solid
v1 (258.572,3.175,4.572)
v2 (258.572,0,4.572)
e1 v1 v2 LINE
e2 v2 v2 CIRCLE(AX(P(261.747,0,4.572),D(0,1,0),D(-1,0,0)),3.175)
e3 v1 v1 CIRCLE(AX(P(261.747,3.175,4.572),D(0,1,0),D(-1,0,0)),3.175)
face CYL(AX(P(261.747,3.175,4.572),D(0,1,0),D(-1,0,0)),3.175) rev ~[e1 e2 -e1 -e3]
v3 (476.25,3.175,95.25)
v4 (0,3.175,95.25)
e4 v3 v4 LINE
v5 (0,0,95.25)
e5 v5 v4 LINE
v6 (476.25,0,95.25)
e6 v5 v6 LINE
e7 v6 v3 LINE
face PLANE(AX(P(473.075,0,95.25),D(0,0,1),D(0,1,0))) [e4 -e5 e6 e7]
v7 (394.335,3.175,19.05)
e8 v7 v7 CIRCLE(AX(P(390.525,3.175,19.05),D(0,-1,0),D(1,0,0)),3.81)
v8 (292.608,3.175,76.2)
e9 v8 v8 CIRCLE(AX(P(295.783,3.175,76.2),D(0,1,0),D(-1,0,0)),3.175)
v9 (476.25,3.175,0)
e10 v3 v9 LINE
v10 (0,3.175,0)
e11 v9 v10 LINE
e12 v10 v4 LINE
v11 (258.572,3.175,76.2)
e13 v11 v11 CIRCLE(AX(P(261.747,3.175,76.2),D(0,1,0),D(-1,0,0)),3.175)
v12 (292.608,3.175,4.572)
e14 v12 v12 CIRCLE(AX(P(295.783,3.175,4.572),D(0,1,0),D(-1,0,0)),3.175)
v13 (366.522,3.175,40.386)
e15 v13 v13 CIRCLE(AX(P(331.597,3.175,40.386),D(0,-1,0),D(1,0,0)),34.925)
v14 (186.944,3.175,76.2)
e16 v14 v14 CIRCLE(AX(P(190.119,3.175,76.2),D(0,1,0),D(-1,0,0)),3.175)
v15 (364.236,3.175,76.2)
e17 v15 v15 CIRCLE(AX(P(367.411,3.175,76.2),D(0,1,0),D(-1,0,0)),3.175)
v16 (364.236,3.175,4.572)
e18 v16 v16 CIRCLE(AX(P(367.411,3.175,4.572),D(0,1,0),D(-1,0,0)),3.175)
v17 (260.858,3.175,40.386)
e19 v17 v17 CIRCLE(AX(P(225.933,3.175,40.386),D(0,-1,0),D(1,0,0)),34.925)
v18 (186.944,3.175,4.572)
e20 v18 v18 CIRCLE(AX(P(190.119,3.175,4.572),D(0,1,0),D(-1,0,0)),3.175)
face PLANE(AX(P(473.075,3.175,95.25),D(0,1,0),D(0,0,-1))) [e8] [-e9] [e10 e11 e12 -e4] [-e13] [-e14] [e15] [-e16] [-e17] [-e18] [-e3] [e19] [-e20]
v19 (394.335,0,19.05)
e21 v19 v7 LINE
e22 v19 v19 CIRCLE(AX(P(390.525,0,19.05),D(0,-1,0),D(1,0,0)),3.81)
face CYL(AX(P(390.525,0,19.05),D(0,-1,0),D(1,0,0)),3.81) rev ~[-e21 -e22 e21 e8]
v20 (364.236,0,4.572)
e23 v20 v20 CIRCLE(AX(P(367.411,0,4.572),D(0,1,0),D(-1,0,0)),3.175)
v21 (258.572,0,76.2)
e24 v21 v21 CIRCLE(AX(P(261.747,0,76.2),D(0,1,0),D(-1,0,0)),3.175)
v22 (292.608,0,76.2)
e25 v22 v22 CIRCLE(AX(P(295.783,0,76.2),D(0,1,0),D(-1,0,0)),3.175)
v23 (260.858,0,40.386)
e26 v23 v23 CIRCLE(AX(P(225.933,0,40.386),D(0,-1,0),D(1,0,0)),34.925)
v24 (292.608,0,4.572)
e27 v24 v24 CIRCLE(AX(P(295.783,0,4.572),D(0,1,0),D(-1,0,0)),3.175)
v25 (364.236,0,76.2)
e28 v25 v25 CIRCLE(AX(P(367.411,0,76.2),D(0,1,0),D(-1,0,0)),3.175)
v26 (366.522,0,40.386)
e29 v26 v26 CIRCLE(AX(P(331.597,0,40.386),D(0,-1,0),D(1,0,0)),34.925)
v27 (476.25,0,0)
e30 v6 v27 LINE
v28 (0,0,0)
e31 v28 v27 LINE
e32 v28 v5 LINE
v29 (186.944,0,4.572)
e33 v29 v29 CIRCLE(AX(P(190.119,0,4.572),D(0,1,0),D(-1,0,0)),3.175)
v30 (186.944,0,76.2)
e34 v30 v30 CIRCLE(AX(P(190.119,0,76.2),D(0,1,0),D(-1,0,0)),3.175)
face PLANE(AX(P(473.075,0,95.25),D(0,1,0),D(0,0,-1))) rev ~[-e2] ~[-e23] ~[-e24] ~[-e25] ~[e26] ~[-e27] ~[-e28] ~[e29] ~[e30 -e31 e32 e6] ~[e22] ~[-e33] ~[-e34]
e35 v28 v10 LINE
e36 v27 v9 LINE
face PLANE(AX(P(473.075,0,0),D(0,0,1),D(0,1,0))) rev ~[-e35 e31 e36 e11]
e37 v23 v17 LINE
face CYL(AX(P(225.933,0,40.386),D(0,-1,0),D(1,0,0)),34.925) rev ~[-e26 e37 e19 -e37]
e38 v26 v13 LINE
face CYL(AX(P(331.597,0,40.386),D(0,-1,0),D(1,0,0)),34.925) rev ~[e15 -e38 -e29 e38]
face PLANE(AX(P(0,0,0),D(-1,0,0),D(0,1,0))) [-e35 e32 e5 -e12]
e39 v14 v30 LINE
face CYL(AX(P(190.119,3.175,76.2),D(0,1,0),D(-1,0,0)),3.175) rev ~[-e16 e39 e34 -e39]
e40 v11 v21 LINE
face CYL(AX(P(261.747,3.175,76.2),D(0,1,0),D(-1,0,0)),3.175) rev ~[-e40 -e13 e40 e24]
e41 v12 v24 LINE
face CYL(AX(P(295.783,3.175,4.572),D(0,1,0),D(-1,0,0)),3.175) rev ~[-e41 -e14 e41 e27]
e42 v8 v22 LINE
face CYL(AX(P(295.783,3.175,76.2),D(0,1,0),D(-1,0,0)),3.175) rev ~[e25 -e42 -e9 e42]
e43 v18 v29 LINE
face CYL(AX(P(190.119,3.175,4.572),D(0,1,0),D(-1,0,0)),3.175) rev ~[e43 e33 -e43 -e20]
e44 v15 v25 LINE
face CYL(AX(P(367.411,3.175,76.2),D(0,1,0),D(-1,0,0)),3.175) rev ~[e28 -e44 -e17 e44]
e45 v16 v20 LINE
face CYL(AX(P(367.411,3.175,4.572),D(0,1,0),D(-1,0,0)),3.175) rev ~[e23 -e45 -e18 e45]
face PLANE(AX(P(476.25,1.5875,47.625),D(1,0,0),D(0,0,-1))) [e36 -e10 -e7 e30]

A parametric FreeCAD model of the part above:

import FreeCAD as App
import Part
import Sketcher

V = App.Vector
Q = App.Units.Quantity


def add_polygon(sketch, points):
    """Adds a closed chain of lines whose ends are joined by coincident constraints."""
    first, n = sketch.GeometryCount, len(points)
    for a, b in zip(points, points[1:] + points[:1]):
        sketch.addGeometry(Part.LineSegment(App.Vector(*a, 0), App.Vector(*b, 0)), False)
    for i in range(n):
        sketch.addConstraint(Sketcher.Constraint("Coincident", first + i, 2, first + (i + 1) % n, 1))

doc = App.newDocument("Part")
body = doc.addObject("PartDesign::Body", "Body")

sketch1 = body.newObject("Sketcher::SketchObject", "Sketch")
sketch1.AttachmentSupport = (doc.getObject("XY_Plane"), [""])
sketch1.MapMode = "FlatFace"
add_polygon(sketch1, [(0, 381), (0, 0), (473.1, 0), (473.1, 3.2), (3.2, 3.2), (3.2, 381)])
sketch1.addConstraint(Sketcher.Constraint("Vertical", 0))
sketch1.addConstraint(Sketcher.Constraint("Horizontal", 1))
sketch1.addConstraint(Sketcher.Constraint("Vertical", 2))
sketch1.addConstraint(Sketcher.Constraint("Horizontal", 3))
sketch1.addConstraint(Sketcher.Constraint("Vertical", 4))
sketch1.addConstraint(Sketcher.Constraint("Horizontal", 5))
sketch1.addConstraint(Sketcher.Constraint("Coincident", 0, 2, -1, 1))
sketch1.addConstraint(Sketcher.Constraint("Equal", 5, 2))
sketch1.addConstraint(Sketcher.Constraint("DistanceY", 0, 2, 0, 1, Q("15 in")))
sketch1.addConstraint(Sketcher.Constraint("DistanceX", 3, 2, 3, 1, Q("18.5 in")))
sketch1.addConstraint(Sketcher.Constraint("DistanceX", 1, 1, 1, 2, Q("18.625 in")))
pad1 = body.newObject("PartDesign::Pad", "Pad")
pad1.Profile = sketch1
pad1.Length = Q("3.75 in")

sketch2 = body.newObject("Sketcher::SketchObject", "Sketch001")
sketch2.AttachmentSupport = (doc.getObject("XZ_Plane"), [""])
sketch2.MapMode = "FlatFace"
sketch2.AttachmentOffset = App.Placement(V(0, 0, -0.125 * 25.4), App.Rotation())
sketch2.addGeometry(Part.Circle(V(190.1, 4.6, 0), V(0, 0, 1), 3.2), False)
sketch2.addGeometry(Part.Circle(V(190.1, 76.2, 0), V(0, 0, 1), 3.2), False)
sketch2.addGeometry(Part.Circle(V(261.7, 4.6, 0), V(0, 0, 1), 3.2), False)
sketch2.addGeometry(Part.Circle(V(261.7, 76.2, 0), V(0, 0, 1), 3.2), False)
sketch2.addGeometry(Part.Circle(V(295.8, 76.2, 0), V(0, 0, 1), 3.2), False)
sketch2.addGeometry(Part.Circle(V(295.8, 4.6, 0), V(0, 0, 1), 3.2), False)
sketch2.addGeometry(Part.Circle(V(367.4, 76.2, 0), V(0, 0, 1), 3.2), False)
sketch2.addGeometry(Part.Circle(V(367.4, 4.6, 0), V(0, 0, 1), 3.2), False)
sketch2.addConstraint(Sketcher.Constraint("Equal", 0, 1))
sketch2.addConstraint(Sketcher.Constraint("Equal", 1, 2))
sketch2.addConstraint(Sketcher.Constraint("Equal", 2, 3))
sketch2.addConstraint(Sketcher.Constraint("Equal", 3, 4))
sketch2.addConstraint(Sketcher.Constraint("Equal", 4, 5))
sketch2.addConstraint(Sketcher.Constraint("Equal", 5, 6))
sketch2.addConstraint(Sketcher.Constraint("Equal", 6, 7))
sketch2.addConstraint(Sketcher.Constraint("Horizontal", 0, 3, 2, 3))
sketch2.addConstraint(Sketcher.Constraint("Horizontal", 1, 3, 3, 3))
sketch2.addConstraint(Sketcher.Constraint("Horizontal", 3, 3, 4, 3))
sketch2.addConstraint(Sketcher.Constraint("Horizontal", 2, 3, 5, 3))
sketch2.addConstraint(Sketcher.Constraint("Horizontal", 4, 3, 6, 3))
sketch2.addConstraint(Sketcher.Constraint("Horizontal", 5, 3, 7, 3))
sketch2.addConstraint(Sketcher.Constraint("Vertical", 0, 3, 1, 3))
sketch2.addConstraint(Sketcher.Constraint("Vertical", 2, 3, 3, 3))
sketch2.addConstraint(Sketcher.Constraint("Vertical", 4, 3, 5, 3))
sketch2.addConstraint(Sketcher.Constraint("Vertical", 6, 3, 7, 3))
sketch2.addConstraint(Sketcher.Constraint("Diameter", 0, Q("0.25 in")))
sketch2.addConstraint(Sketcher.Constraint("DistanceY", -1, 1, 1, 3, Q("3 in")))
sketch2.addConstraint(Sketcher.Constraint("DistanceY", -1, 1, 0, 3, Q("0.18 in")))
sketch2.addConstraint(Sketcher.Constraint("DistanceX", 0, 3, 2, 3, Q("2.82 in")))
sketch2.addConstraint(Sketcher.Constraint("DistanceX", 3, 3, 4, 3, Q("1.34 in")))
sketch2.addConstraint(Sketcher.Constraint("DistanceX", 4, 3, 6, 3, Q("2.82 in")))
sketch2.addConstraint(Sketcher.Constraint("DistanceX", -1, 1, 0, 3, Q("7.485 in")))
pocket1 = body.newObject("PartDesign::Pocket", "Pocket")
pocket1.Profile = sketch2
pocket1.Length = Q("6 in")
pocket1.Reversed = True

sketch3 = body.newObject("Sketcher::SketchObject", "Sketch002")
sketch3.AttachmentSupport = (doc.getObject("XZ_Plane"), [""])
sketch3.MapMode = "FlatFace"
sketch3.addGeometry(Part.Circle(V(225.9, 40.4, 0), V(0, 0, 1), 34.9), False)
sketch3.addGeometry(Part.Circle(V(331.6, 40.4, 0), V(0, 0, 1), 34.9), False)
sketch3.addGeometry(Part.Circle(V(390.5, 19.1, 0), V(0, 0, 1), 3.8), False)
sketch3.addConstraint(Sketcher.Constraint("Equal", 0, 1))
sketch3.addConstraint(Sketcher.Constraint("Horizontal", 0, 3, 1, 3))
sketch3.addConstraint(Sketcher.Constraint("Diameter", 2, Q("0.3 in")))
sketch3.addConstraint(Sketcher.Constraint("Diameter", 0, Q("2.75 in")))
sketch3.addConstraint(Sketcher.Constraint("DistanceY", -1, 1, 0, 3, Q("1.59 in")))
sketch3.addConstraint(Sketcher.Constraint("DistanceY", -1, 1, 2, 3, Q("0.75 in")))
sketch3.addConstraint(Sketcher.Constraint("DistanceX", 0, 3, 1, 3, Q("4.16 in")))
sketch3.addConstraint(Sketcher.Constraint("DistanceX", 1, 3, 2, 3, Q("2.32 in")))
sketch3.addConstraint(Sketcher.Constraint("DistanceX", -1, 1, 0, 3, Q("8.895 in")))
pocket2 = body.newObject("PartDesign::Pocket", "Pocket001")
pocket2.Profile = sketch3
pocket2.Length = Q("15 in")

sketch4 = body.newObject("Sketcher::SketchObject", "Sketch003")
sketch4.AttachmentSupport = (doc.getObject("YZ_Plane"), [""])
sketch4.MapMode = "FlatFace"
sketch4.addGeometry(Part.Circle(V(349.2, 19.1, 0), V(0, 0, 1), 3.8), False)
sketch4.addConstraint(Sketcher.Constraint("Diameter", 0, Q("0.3 in")))
sketch4.addConstraint(Sketcher.Constraint("DistanceX", -1, 1, 0, 3, Q("13.75 in")))
sketch4.addConstraint(Sketcher.Constraint("DistanceY", -1, 1, 0, 3, Q("0.75 in")))
pocket3 = body.newObject("PartDesign::Pocket", "Pocket002")
pocket3.Profile = sketch4
pocket3.Length = Q("0.5 in")
pocket3.Reversed = True

sketch5 = body.newObject("Sketcher::SketchObject", "Sketch004")
sketch5.AttachmentSupport = (doc.getObject("YZ_Plane"), [""])
sketch5.MapMode = "FlatFace"
sketch5.AttachmentOffset = App.Placement(V(0, 0, 0.125 * 25.4), App.Rotation())
add_polygon(sketch5, [(381, 95), (3, 95), (3, 0), (381, 0)])
sketch5.addConstraint(Sketcher.Constraint("Horizontal", 0))
sketch5.addConstraint(Sketcher.Constraint("Vertical", 1))
sketch5.addConstraint(Sketcher.Constraint("Horizontal", 2))
sketch5.addConstraint(Sketcher.Constraint("Vertical", 3))
sketch5.addConstraint(Sketcher.Constraint("PointOnObject", 1, 2, -1))
sketch5.addConstraint(Sketcher.Constraint("DistanceX", -1, 1, 2, 2, Q("15 in")))
sketch5.addConstraint(Sketcher.Constraint("DistanceY", 1, 2, 1, 1, Q("3.75 in")))
sketch5.addConstraint(Sketcher.Constraint("DistanceX", 0, 2, 0, 1, Q("14.875 in")))
pocket4 = body.newObject("PartDesign::Pocket", "Pocket003")
pocket4.Profile = sketch5
pocket4.Type = "ThroughAll"

sketch6 = body.newObject("Sketcher::SketchObject", "Sketch005")
sketch6.AttachmentSupport = (doc.getObject("YZ_Plane"), [""])
sketch6.MapMode = "FlatFace"
sketch6.AttachmentOffset = App.Placement(V(0, 0, 18.625 * 25.4), App.Rotation())
add_polygon(sketch6, [(3.2, 95.2), (0, 95.2), (0, 0), (3.2, 0)])
sketch6.addConstraint(Sketcher.Constraint("Horizontal", 0))
sketch6.addConstraint(Sketcher.Constraint("Vertical", 1))
sketch6.addConstraint(Sketcher.Constraint("Horizontal", 2))
sketch6.addConstraint(Sketcher.Constraint("Vertical", 3))
sketch6.addConstraint(Sketcher.Constraint("Coincident", 1, 2, -1, 1))
sketch6.addConstraint(Sketcher.Constraint("DistanceY", 1, 2, 1, 1, Q("3.75 in")))
sketch6.addConstraint(Sketcher.Constraint("DistanceX", 0, 2, 0, 1, Q("0.125 in")))
pad2 = body.newObject("PartDesign::Pad", "Pad001")
pad2.Profile = sketch6
pad2.Length = Q("0.125 in")

doc.recompute()
